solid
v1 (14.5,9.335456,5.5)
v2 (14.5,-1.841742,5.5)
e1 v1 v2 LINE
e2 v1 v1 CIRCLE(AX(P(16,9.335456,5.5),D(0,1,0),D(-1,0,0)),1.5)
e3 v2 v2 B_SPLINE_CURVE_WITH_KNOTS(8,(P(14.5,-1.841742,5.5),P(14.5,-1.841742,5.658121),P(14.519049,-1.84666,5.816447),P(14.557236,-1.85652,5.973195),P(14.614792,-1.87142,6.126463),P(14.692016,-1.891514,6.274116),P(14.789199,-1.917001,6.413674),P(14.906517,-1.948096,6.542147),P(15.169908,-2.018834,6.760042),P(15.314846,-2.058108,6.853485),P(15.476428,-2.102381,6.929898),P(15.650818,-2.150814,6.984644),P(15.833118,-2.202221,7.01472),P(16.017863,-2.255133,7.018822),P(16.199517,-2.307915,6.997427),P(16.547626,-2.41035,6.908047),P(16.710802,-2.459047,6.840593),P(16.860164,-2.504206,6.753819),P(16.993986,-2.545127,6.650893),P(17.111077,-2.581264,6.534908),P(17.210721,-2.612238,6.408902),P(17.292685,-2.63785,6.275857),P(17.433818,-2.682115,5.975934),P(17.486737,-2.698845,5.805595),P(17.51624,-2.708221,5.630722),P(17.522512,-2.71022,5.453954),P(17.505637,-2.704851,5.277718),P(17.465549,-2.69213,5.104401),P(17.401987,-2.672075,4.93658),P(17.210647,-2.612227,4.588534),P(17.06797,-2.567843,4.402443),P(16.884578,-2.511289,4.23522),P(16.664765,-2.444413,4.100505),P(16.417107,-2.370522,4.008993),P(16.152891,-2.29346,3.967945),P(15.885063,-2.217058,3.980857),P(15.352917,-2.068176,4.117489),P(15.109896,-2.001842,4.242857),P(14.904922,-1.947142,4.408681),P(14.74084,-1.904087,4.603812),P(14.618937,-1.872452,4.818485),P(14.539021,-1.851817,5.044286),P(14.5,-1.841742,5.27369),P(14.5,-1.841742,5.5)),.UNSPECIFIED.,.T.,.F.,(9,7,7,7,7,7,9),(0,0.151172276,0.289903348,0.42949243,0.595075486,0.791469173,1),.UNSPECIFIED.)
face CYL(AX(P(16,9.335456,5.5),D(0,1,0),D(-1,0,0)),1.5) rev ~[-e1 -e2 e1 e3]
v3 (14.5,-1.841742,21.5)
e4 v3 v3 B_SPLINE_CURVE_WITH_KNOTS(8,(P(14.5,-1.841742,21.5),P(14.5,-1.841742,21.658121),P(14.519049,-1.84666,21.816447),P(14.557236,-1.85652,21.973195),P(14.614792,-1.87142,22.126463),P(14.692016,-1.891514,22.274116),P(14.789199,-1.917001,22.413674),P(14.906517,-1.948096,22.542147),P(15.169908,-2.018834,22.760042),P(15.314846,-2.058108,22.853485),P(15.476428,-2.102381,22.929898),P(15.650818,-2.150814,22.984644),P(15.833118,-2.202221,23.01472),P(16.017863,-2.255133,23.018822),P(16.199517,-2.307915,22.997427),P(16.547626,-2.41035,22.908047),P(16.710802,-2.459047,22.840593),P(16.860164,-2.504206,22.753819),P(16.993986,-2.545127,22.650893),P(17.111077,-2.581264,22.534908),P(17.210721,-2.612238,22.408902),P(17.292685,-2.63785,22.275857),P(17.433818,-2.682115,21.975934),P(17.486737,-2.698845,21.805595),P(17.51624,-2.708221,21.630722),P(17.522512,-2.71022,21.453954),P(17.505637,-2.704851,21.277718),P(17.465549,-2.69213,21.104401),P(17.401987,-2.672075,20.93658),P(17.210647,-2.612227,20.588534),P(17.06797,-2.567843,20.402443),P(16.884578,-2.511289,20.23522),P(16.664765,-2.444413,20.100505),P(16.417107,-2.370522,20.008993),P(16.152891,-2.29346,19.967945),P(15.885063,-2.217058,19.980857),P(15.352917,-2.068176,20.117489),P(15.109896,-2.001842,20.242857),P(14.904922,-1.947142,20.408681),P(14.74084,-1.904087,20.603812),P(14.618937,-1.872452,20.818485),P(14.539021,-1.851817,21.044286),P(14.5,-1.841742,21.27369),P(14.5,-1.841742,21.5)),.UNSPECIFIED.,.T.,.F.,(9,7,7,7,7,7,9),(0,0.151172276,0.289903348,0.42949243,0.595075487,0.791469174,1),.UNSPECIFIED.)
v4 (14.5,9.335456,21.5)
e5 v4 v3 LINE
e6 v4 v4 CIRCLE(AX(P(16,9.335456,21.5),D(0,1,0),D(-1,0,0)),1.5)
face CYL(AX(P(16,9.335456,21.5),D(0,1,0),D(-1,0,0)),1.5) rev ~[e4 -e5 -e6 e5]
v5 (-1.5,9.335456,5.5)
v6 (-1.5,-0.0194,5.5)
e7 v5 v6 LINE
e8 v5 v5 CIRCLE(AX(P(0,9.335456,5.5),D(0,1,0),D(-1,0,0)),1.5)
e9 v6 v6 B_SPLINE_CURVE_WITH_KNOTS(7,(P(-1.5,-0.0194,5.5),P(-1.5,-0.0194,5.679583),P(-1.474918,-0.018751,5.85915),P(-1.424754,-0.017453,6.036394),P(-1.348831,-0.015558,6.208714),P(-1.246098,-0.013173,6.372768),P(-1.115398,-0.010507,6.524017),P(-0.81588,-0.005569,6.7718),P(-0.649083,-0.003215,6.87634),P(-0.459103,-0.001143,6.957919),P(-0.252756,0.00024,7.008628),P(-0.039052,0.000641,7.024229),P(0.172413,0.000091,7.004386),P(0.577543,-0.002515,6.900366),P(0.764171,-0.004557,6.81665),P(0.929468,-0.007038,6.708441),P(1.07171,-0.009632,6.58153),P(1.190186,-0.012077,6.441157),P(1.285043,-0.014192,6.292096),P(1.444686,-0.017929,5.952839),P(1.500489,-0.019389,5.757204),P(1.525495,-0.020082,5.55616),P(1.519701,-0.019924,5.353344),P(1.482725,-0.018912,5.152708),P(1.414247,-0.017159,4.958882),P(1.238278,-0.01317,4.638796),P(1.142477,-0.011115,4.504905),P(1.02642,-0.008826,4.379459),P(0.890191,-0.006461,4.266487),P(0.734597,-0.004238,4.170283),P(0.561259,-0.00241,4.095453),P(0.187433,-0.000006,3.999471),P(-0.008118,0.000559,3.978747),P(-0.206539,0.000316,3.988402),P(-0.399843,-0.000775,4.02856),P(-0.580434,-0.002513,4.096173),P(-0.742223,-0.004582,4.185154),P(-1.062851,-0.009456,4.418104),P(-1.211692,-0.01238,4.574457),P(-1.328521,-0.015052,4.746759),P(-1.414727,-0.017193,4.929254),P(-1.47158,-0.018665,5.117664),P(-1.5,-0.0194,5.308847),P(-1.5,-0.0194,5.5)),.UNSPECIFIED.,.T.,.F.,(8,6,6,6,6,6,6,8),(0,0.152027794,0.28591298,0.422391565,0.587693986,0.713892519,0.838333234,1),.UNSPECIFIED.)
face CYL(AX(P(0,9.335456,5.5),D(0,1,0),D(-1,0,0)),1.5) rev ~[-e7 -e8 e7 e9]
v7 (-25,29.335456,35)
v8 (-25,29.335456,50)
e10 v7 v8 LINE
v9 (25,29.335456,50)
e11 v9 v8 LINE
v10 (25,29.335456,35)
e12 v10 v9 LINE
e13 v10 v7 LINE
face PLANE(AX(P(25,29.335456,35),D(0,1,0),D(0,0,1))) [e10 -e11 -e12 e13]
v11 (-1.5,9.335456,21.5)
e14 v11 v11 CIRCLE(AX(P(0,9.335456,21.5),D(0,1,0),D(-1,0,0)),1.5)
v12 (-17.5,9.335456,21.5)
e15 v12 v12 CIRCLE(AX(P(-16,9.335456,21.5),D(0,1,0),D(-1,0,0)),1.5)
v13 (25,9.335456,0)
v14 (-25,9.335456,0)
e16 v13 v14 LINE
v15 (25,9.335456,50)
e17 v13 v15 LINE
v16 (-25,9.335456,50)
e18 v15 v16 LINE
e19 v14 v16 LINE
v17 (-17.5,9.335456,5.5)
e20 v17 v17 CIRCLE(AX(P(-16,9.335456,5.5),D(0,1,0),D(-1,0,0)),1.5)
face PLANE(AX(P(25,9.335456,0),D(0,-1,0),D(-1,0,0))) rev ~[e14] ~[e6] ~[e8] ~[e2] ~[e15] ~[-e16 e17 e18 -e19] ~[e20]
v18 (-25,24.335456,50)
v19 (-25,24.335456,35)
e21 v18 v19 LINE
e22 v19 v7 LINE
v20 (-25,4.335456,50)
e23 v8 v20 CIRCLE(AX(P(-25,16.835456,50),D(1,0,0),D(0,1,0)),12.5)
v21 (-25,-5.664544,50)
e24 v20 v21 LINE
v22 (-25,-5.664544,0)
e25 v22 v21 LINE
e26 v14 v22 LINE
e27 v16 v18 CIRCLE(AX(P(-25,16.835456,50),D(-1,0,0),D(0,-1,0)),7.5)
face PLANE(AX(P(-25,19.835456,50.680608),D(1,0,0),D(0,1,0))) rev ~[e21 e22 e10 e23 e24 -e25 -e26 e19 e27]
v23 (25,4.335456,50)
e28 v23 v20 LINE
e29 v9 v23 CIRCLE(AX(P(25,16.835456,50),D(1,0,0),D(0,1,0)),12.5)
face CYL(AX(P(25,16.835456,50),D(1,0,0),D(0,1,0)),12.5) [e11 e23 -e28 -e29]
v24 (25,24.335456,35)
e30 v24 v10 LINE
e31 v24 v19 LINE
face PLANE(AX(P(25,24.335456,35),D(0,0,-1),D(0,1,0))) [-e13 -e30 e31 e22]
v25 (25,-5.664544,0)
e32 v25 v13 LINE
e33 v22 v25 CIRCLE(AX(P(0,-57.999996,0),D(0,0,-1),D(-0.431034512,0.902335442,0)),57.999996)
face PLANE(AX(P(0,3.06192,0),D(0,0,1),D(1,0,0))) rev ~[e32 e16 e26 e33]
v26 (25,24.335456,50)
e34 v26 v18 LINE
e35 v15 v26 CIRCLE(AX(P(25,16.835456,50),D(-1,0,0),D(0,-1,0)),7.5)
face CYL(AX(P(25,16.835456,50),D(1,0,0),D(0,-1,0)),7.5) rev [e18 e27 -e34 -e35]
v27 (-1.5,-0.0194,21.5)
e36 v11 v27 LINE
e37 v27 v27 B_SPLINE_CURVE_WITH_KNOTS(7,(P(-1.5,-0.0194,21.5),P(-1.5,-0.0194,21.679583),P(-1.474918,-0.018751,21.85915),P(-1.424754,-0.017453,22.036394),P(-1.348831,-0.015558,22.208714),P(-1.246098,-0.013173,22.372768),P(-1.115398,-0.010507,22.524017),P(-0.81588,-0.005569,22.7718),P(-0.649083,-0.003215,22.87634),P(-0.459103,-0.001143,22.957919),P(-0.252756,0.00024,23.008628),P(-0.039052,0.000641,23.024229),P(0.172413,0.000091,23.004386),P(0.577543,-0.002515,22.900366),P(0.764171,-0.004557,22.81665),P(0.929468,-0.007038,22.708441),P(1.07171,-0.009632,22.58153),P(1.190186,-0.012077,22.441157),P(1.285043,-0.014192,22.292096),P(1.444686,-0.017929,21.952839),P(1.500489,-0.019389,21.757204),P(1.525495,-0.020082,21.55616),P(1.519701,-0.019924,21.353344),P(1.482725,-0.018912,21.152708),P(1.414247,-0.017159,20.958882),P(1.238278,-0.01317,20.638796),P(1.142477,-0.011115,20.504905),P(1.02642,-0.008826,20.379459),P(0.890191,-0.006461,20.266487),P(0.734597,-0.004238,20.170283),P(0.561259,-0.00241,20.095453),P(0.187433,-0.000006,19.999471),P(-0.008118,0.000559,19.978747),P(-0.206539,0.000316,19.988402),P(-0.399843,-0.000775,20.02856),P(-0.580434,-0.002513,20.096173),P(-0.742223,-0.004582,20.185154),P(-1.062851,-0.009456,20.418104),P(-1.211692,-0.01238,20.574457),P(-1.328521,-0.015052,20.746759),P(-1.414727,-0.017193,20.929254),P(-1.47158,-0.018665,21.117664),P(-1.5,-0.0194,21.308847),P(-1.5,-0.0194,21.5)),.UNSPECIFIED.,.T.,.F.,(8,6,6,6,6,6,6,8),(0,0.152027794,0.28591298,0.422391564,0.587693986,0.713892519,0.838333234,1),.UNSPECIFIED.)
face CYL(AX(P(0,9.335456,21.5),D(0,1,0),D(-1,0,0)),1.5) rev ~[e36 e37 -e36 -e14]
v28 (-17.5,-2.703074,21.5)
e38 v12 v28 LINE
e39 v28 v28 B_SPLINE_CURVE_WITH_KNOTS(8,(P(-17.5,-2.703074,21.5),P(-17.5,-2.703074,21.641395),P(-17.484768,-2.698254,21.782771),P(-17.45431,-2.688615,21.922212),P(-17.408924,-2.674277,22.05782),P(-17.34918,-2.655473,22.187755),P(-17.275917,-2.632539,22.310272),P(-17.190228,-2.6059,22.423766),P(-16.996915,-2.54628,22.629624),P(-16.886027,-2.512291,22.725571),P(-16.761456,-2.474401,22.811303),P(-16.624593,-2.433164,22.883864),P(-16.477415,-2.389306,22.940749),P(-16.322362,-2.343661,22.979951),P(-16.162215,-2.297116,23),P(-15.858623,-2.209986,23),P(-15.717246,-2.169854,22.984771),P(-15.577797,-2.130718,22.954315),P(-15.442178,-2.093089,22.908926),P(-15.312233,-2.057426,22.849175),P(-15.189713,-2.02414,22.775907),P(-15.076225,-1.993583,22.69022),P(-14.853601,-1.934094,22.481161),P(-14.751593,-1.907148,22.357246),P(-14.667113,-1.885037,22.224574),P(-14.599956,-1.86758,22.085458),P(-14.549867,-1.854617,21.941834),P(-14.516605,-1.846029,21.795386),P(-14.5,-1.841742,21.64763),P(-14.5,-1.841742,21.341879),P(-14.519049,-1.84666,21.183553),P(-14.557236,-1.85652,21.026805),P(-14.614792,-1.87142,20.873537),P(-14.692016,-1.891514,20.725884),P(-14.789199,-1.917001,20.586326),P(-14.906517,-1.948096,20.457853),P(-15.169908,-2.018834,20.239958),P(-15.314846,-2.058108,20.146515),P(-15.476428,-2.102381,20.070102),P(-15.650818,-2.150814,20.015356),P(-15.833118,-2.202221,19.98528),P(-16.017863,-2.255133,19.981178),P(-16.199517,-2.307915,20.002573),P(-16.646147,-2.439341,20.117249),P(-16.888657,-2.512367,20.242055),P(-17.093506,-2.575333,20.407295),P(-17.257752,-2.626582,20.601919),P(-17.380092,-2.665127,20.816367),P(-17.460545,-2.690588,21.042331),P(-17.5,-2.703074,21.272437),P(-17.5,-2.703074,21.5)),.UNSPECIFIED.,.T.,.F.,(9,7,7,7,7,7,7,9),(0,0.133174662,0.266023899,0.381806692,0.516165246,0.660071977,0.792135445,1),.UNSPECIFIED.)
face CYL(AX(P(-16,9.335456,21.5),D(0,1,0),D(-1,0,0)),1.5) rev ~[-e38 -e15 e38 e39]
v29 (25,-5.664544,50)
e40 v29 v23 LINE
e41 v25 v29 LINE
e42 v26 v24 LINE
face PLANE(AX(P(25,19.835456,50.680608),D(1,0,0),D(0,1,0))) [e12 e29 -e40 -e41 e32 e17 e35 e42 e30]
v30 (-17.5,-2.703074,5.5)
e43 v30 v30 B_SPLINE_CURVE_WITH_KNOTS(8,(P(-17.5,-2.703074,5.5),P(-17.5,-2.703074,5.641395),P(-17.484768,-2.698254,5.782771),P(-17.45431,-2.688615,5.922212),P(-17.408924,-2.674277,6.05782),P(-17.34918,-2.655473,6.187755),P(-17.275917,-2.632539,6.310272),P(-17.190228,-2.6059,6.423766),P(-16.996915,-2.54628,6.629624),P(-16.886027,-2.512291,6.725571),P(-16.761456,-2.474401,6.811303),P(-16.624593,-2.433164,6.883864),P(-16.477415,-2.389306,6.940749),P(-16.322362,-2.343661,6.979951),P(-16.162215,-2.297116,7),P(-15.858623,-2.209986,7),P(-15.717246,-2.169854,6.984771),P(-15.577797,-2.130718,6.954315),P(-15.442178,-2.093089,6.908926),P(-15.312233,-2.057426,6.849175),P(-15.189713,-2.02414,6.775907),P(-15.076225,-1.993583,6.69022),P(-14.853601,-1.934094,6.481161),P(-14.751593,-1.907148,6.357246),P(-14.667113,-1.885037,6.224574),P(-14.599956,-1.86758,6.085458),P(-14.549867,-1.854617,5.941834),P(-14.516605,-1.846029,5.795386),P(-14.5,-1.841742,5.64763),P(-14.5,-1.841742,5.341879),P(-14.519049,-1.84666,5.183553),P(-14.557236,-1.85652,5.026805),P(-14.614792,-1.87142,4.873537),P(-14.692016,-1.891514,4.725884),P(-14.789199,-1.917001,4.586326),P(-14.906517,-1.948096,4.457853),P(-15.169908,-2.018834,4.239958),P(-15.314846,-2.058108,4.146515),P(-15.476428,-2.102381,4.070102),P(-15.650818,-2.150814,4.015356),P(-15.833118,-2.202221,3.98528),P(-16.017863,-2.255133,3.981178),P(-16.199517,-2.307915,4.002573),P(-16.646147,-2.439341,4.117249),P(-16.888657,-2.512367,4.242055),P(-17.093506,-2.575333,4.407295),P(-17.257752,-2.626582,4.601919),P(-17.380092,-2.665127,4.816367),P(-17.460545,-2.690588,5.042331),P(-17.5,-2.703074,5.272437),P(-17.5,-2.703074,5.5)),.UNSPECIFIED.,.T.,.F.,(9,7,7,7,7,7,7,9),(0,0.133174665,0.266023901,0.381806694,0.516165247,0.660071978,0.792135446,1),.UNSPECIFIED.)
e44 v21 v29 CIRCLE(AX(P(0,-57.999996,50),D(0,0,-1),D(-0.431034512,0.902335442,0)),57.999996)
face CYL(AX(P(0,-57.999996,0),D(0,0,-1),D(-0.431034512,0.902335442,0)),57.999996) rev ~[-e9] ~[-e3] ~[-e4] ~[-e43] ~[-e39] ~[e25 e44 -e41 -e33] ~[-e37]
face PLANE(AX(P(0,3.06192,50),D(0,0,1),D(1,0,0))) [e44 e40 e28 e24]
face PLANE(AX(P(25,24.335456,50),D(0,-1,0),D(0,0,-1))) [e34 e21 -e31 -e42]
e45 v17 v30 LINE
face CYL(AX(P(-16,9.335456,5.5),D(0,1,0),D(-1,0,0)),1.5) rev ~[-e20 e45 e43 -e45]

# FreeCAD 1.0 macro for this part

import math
import FreeCAD as App
import Part
import Sketcher
from FreeCAD import Vector

doc = App.newDocument("Part")
body = doc.addObject("PartDesign::Body", "Body")

sketch1 = doc.addObject("Sketcher::SketchObject", "Sketch")
body.addObject(sketch1)
sketch1.AttachmentSupport = (doc.XY_Plane, [""])
sketch1.MapMode = "FlatFace"
sketch1.addGeometry(Part.ArcOfCircle(Part.Circle(Vector(0, -58, 0), Vector(0, 0, 1), 58), math.radians(64), math.radians(116)), False)
sketch1.addGeometry(Part.LineSegment(Vector(25, -6, 0), Vector(25, 9, 0)), False)
sketch1.addGeometry(Part.LineSegment(Vector(25, 9, 0), Vector(-25, 9, 0)), False)
sketch1.addGeometry(Part.LineSegment(Vector(-25, 9, 0), Vector(-25, -6, 0)), False)
sketch1.addConstraint(Sketcher.Constraint("Coincident", 0, 1, 1, 1))
sketch1.addConstraint(Sketcher.Constraint("Coincident", 1, 2, 2, 1))
sketch1.addConstraint(Sketcher.Constraint("Coincident", 2, 2, 3, 1))
sketch1.addConstraint(Sketcher.Constraint("Coincident", 3, 2, 0, 2))
sketch1.addConstraint(Sketcher.Constraint("Vertical", 1))
sketch1.addConstraint(Sketcher.Constraint("Horizontal", 2))
sketch1.addConstraint(Sketcher.Constraint("Vertical", 3))
sketch1.addConstraint(Sketcher.Constraint("Symmetric", 0, 1, 3, 2, -2))
sketch1.addConstraint(Sketcher.Constraint("DistanceX", 2, 2, 2, 1, 50.0))
sketch1.addConstraint(Sketcher.Constraint("DistanceY", 1, 1, 1, 2, 15.0))
sketch1.addConstraint(Sketcher.Constraint("Radius", 0, 57.999996))
sketch1.addConstraint(Sketcher.Constraint("DistanceY", 0, 3, -1, 1, 57.999996))
pad1 = doc.addObject("PartDesign::Pad", "Pad")
body.addObject(pad1)
pad1.Profile = sketch1
pad1.Length = 50

sketch2 = doc.addObject("Sketcher::SketchObject", "Sketch001")
body.addObject(sketch2)
sketch2.AttachmentSupport = (doc.YZ_Plane, [""])
sketch2.MapMode = "FlatFace"
sketch2.AttachmentOffset = App.Placement(Vector(0, 0, 25), App.Rotation())
sketch2.addGeometry(Part.ArcOfCircle(Part.Circle(Vector(17, 50, 0), Vector(0, 0, 1), 8), math.radians(0), math.radians(180)), False)
sketch2.addGeometry(Part.LineSegment(Vector(24, 50, 0), Vector(24, 35, 0)), False)
sketch2.addGeometry(Part.LineSegment(Vector(24, 35, 0), Vector(29, 35, 0)), False)
sketch2.addGeometry(Part.LineSegment(Vector(29, 35, 0), Vector(29, 50, 0)), False)
sketch2.addGeometry(Part.ArcOfCircle(Part.Circle(Vector(17, 50, 0), Vector(0, 0, 1), 12), math.radians(0), math.radians(180)), False)
sketch2.addGeometry(Part.LineSegment(Vector(4, 50, 0), Vector(9, 50, 0)), False)
sketch2.addConstraint(Sketcher.Constraint("Tangent", 0, 1, 1, 1))
sketch2.addConstraint(Sketcher.Constraint("Coincident", 1, 2, 2, 1))
sketch2.addConstraint(Sketcher.Constraint("Coincident", 2, 2, 3, 1))
sketch2.addConstraint(Sketcher.Constraint("Tangent", 3, 2, 4, 1))
sketch2.addConstraint(Sketcher.Constraint("Coincident", 4, 2, 5, 1))
sketch2.addConstraint(Sketcher.Constraint("Coincident", 5, 2, 0, 2))
sketch2.addConstraint(Sketcher.Constraint("Vertical", 1))
sketch2.addConstraint(Sketcher.Constraint("Horizontal", 2))
sketch2.addConstraint(Sketcher.Constraint("Vertical", 3))
sketch2.addConstraint(Sketcher.Constraint("Horizontal", 5))
sketch2.addConstraint(Sketcher.Constraint("Coincident", 4, 3, 0, 3))
sketch2.addConstraint(Sketcher.Constraint("Horizontal", 3, 2, 4, 2))
sketch2.addConstraint(Sketcher.Constraint("Radius", 0, 7.5))
sketch2.addConstraint(Sketcher.Constraint("Radius", 4, 12.5))
sketch2.addConstraint(Sketcher.Constraint("DistanceY", 1, 2, 1, 1, 15.0))
sketch2.addConstraint(Sketcher.Constraint("DistanceY", -1, 1, 0, 3, 50.0))
sketch2.addConstraint(Sketcher.Constraint("DistanceX", -1, 1, 0, 3, 16.835456))
pad2 = doc.addObject("PartDesign::Pad", "Pad001")
body.addObject(pad2)
pad2.Profile = sketch2
pad2.Length = 50
pad2.Reversed = True

sketch3 = doc.addObject("Sketcher::SketchObject", "Sketch002")
body.addObject(sketch3)
sketch3.AttachmentSupport = (doc.XZ_Plane, [""])
sketch3.MapMode = "FlatFace"
sketch3.AttachmentOffset = App.Placement(Vector(0, 0, -9.335456), App.Rotation())
sketch3.addGeometry(Part.Circle(Vector(16, 21.5, 0), Vector(0, 0, 1), 1.5), False)
sketch3.addGeometry(Part.Circle(Vector(0, 21.5, 0), Vector(0, 0, 1), 1.5), False)
sketch3.addGeometry(Part.Circle(Vector(-16, 21.5, 0), Vector(0, 0, 1), 1.5), False)
sketch3.addGeometry(Part.Circle(Vector(-16, 5.5, 0), Vector(0, 0, 1), 1.5), False)
sketch3.addGeometry(Part.Circle(Vector(0, 5.5, 0), Vector(0, 0, 1), 1.5), False)
sketch3.addGeometry(Part.Circle(Vector(16, 5.5, 0), Vector(0, 0, 1), 1.5), False)
sketch3.addConstraint(Sketcher.Constraint("Equal", 0, 1))
sketch3.addConstraint(Sketcher.Constraint("Equal", 1, 2))
sketch3.addConstraint(Sketcher.Constraint("Equal", 2, 3))
sketch3.addConstraint(Sketcher.Constraint("Equal", 3, 4))
sketch3.addConstraint(Sketcher.Constraint("Equal", 4, 5))
sketch3.addConstraint(Sketcher.Constraint("Symmetric", 0, 3, 2, 3, -2))
sketch3.addConstraint(Sketcher.Constraint("Symmetric", 3, 3, 5, 3, -2))
sketch3.addConstraint(Sketcher.Constraint("PointOnObject", 1, 3, -2))
sketch3.addConstraint(Sketcher.Constraint("PointOnObject", 4, 3, -2))
sketch3.addConstraint(Sketcher.Constraint("Horizontal", 0, 3, 1, 3))
sketch3.addConstraint(Sketcher.Constraint("Horizontal", 3, 3, 4, 3))
sketch3.addConstraint(Sketcher.Constraint("Vertical", 2, 3, 3, 3))
sketch3.addConstraint(Sketcher.Constraint("Diameter", 0, 3.0))
sketch3.addConstraint(Sketcher.Constraint("DistanceX", -1, 1, 0, 3, 16.0))
sketch3.addConstraint(Sketcher.Constraint("DistanceY", 3, 3, 2, 3, 16.0))
sketch3.addConstraint(Sketcher.Constraint("DistanceY", -1, 1, 0, 3, 21.5))
pocket1 = doc.addObject("PartDesign::Pocket", "Pocket")
body.addObject(pocket1)
pocket1.Profile = sketch3
pocket1.Type = "ThroughAll"
pocket1.Reversed = True

doc.recompute()
